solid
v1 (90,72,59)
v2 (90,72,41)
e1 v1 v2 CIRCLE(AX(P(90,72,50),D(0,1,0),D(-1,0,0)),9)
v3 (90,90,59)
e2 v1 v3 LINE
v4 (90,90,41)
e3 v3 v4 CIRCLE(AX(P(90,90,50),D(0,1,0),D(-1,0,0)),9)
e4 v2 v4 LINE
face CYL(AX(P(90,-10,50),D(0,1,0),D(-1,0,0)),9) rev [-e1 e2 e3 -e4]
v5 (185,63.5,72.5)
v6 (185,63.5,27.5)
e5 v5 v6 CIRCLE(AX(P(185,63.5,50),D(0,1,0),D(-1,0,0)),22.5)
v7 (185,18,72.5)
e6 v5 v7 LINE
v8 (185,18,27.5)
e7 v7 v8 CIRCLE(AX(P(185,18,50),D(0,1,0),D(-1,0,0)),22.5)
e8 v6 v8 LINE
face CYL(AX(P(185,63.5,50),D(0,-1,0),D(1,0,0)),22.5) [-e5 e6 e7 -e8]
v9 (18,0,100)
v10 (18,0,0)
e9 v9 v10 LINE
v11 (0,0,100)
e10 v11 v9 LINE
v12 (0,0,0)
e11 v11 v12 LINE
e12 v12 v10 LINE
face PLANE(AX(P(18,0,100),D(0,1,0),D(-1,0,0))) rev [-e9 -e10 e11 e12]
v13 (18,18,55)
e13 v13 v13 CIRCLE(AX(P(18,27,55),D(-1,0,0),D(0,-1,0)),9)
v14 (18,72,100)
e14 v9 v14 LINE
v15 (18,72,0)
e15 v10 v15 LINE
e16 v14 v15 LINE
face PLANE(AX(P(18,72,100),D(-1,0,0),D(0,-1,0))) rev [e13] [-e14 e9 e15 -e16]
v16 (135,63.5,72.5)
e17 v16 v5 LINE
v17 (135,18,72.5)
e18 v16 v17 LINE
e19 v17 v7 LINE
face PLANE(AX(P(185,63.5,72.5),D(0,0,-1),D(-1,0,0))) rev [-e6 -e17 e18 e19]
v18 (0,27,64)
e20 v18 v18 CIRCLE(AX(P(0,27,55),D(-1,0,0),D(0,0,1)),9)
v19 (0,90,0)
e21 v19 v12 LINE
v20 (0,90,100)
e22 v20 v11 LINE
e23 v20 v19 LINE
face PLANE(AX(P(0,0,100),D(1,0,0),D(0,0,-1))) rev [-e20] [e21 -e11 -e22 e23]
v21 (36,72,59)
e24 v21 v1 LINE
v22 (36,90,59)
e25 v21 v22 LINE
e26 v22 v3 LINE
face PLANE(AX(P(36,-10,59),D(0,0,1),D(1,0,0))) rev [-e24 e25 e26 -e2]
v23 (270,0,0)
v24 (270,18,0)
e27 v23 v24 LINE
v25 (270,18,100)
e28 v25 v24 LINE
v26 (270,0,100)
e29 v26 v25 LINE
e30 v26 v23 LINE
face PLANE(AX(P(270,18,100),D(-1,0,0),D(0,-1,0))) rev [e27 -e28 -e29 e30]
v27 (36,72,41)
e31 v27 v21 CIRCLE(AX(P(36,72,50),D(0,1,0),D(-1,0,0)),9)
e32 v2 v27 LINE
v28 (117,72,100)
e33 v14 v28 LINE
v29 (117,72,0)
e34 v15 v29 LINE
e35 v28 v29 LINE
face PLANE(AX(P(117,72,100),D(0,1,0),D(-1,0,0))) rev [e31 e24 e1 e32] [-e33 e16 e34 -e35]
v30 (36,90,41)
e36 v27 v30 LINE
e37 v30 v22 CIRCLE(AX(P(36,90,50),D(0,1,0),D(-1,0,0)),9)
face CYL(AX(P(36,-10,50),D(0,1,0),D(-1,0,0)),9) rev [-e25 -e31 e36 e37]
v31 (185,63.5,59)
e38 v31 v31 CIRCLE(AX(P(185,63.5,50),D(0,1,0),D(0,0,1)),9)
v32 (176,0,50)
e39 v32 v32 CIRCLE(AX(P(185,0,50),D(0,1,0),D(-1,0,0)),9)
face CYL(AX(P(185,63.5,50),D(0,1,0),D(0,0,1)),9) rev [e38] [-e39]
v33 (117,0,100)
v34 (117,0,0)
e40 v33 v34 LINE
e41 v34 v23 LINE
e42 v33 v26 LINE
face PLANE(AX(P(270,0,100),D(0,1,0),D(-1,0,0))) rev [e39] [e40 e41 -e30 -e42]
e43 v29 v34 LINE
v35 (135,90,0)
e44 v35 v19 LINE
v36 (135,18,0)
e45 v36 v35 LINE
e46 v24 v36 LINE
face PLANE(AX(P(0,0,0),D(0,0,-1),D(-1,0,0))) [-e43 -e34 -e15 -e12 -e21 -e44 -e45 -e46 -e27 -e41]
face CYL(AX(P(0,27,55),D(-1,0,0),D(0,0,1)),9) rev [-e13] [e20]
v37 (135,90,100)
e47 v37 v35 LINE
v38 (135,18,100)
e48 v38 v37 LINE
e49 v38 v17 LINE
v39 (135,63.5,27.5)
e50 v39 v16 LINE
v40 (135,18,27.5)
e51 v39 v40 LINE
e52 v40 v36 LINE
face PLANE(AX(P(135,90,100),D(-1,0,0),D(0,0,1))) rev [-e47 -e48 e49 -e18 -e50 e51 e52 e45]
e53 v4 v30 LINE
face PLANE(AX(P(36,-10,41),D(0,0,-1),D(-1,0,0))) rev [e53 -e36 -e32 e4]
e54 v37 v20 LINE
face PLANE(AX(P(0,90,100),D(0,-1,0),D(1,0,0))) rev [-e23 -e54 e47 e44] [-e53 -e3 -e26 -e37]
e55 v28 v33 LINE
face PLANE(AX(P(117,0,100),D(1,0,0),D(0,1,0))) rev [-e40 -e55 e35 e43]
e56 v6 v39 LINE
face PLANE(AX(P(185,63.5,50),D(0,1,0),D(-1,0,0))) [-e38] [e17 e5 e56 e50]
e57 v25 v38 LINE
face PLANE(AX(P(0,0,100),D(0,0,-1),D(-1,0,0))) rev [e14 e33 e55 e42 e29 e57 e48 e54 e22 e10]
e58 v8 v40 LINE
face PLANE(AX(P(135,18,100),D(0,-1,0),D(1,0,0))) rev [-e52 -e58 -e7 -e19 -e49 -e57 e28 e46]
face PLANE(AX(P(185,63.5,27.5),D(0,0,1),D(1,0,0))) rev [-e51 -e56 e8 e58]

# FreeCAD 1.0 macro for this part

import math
import FreeCAD as App
import Part
import Sketcher
from FreeCAD import Vector
Q = App.Units.Quantity


def add_polygon(sketch, points):
    """Adds a closed chain of lines whose ends are joined by coincident constraints."""
    first, n = sketch.GeometryCount, len(points)
    for a, b in zip(points, points[1:] + points[:1]):
        sketch.addGeometry(Part.LineSegment(App.Vector(*a, 0), App.Vector(*b, 0)), False)
    for i in range(n):
        sketch.addConstraint(Sketcher.Constraint("Coincident", first + i, 2, first + (i + 1) % n, 1))

doc = App.newDocument("Part")
body = doc.addObject("PartDesign::Body", "Body")

sketch1 = body.newObject("Sketcher::SketchObject", "Sketch")
sketch1.AttachmentSupport = (doc.getObject("XY_Plane"), [""])
sketch1.MapMode = "FlatFace"
add_polygon(sketch1, [(0, 90), (0, 0), (18, 0), (18, 72), (117, 72), (117, 0), (270, 0), (270, 18), (135, 18), (135, 90)])
sketch1.addConstraint([
    Sketcher.Constraint("Vertical", 0),
    Sketcher.Constraint("Horizontal", 1),
    Sketcher.Constraint("Vertical", 2),
    Sketcher.Constraint("Horizontal", 3),
    Sketcher.Constraint("Vertical", 4),
    Sketcher.Constraint("Horizontal", 5),
    Sketcher.Constraint("Vertical", 6),
    Sketcher.Constraint("Horizontal", 7),
    Sketcher.Constraint("Vertical", 8),
    Sketcher.Constraint("Horizontal", 9),
    Sketcher.Constraint("Coincident", 0, 2, -1, 1),
    Sketcher.Constraint("PointOnObject", 4, 2, -1),
    Sketcher.Constraint("Equal", 7, 9),
    Sketcher.Constraint("Equal", 1, 6),
    Sketcher.Constraint("Equal", 4, 8),
    Sketcher.Constraint("DistanceX", 1, 1, 1, 2, Q("18 mm")),
    Sketcher.Constraint("DistanceX", 3, 1, 3, 2, Q("99 mm")),
    Sketcher.Constraint("DistanceX", 5, 1, 5, 2, Q("153 mm")),
    Sketcher.Constraint("DistanceY", 0, 2, 0, 1, Q("90 mm")),
])
pad1 = body.newObject("PartDesign::Pad", "Pad")
pad1.Profile = sketch1
pad1.Length = 100

sketch2 = body.newObject("Sketcher::SketchObject", "Sketch001")
sketch2.AttachmentSupport = (doc.getObject("XZ_Plane"), [""])
sketch2.MapMode = "FlatFace"
sketch2.AttachmentOffset = App.Placement(Vector(0, 0, -90), App.Rotation())
sketch2.addGeometry([
    Part.LineSegment(Vector(90, 41, 0), Vector(36, 41, 0)),
    Part.ArcOfCircle(Part.Circle(Vector(36, 50, 0), Vector(0, 0, 1), 9), math.radians(90), math.radians(270)),
    Part.LineSegment(Vector(36, 59, 0), Vector(90, 59, 0)),
    Part.ArcOfCircle(Part.Circle(Vector(90, 50, 0), Vector(0, 0, 1), 9), math.radians(-90), math.radians(90)),
], False)
sketch2.addConstraint([
    Sketcher.Constraint("Tangent", 0, 2, 1, 2),
    Sketcher.Constraint("Tangent", 1, 1, 2, 1),
    Sketcher.Constraint("Tangent", 2, 2, 3, 2),
    Sketcher.Constraint("Tangent", 3, 1, 0, 1),
    Sketcher.Constraint("Horizontal", 0),
    Sketcher.Constraint("Horizontal", 2),
    Sketcher.Constraint("Radius", 1, Q("9 mm")),
    Sketcher.Constraint("DistanceX", 0, 2, 0, 1, Q("54 mm")),
    Sketcher.Constraint("DistanceX", -1, 1, 1, 3, Q("36 mm")),
    Sketcher.Constraint("DistanceY", -1, 1, 1, 3, Q("50 mm")),
])
pocket1 = body.newObject("PartDesign::Pocket", "Pocket")
pocket1.Profile = sketch2
pocket1.Length = 100
pocket1.Reversed = True

sketch3 = body.newObject("Sketcher::SketchObject", "Sketch002")
sketch3.AttachmentSupport = (doc.getObject("XZ_Plane"), [""])
sketch3.MapMode = "FlatFace"
sketch3.AttachmentOffset = App.Placement(Vector(0, 0, -18), App.Rotation())
sketch3.addGeometry([
    Part.LineSegment(Vector(185, 28, 0), Vector(135, 28, 0)),
    Part.LineSegment(Vector(135, 28, 0), Vector(135, 72, 0)),
    Part.LineSegment(Vector(135, 72, 0), Vector(185, 72, 0)),
    Part.ArcOfCircle(Part.Circle(Vector(185, 50, 0), Vector(0, 0, 1), 22), math.radians(-90), math.radians(90)),
], False)
sketch3.addConstraint([
    Sketcher.Constraint("Coincident", 0, 2, 1, 1),
    Sketcher.Constraint("Coincident", 1, 2, 2, 1),
    Sketcher.Constraint("Tangent", 2, 2, 3, 2),
    Sketcher.Constraint("Tangent", 3, 1, 0, 1),
    Sketcher.Constraint("Horizontal", 0),
    Sketcher.Constraint("Vertical", 1),
    Sketcher.Constraint("Horizontal", 2),
    Sketcher.Constraint("Radius", 3, Q("22.5 mm")),
    Sketcher.Constraint("DistanceX", 0, 2, 0, 1, Q("50 mm")),
    Sketcher.Constraint("DistanceX", -1, 1, 3, 3, Q("185 mm")),
    Sketcher.Constraint("DistanceY", -1, 1, 3, 3, Q("50 mm")),
])
pad2 = body.newObject("PartDesign::Pad", "Pad001")
pad2.Profile = sketch3
pad2.Length = 45.5
pad2.Reversed = True

sketch4 = body.newObject("Sketcher::SketchObject", "Sketch003")
sketch4.AttachmentSupport = (doc.getObject("XZ_Plane"), [""])
sketch4.MapMode = "FlatFace"
sketch4.AttachmentOffset = App.Placement(Vector(0, 0, -63.5), App.Rotation())
sketch4.addGeometry(Part.Circle(Vector(185, 50, 0), Vector(0, 0, 1), 9), False)
sketch4.addConstraint([
    Sketcher.Constraint("Diameter", 0, Q("18 mm")),
    Sketcher.Constraint("DistanceX", -1, 1, 0, 3, Q("185 mm")),
    Sketcher.Constraint("DistanceY", -1, 1, 0, 3, Q("50 mm")),
])
doc.recompute()
hole = body.newObject("PartDesign::Hole", "Hole")
hole.Profile = sketch4
hole.ThreadType = "None"
hole.Diameter = 18
hole.DepthType = "ThroughAll"
hole.Reversed = True

sketch5 = body.newObject("Sketcher::SketchObject", "Sketch004")
sketch5.AttachmentSupport = (doc.getObject("YZ_Plane"), [""])
sketch5.MapMode = "FlatFace"
sketch5.addGeometry(Part.Circle(Vector(27, 55, 0), Vector(0, 0, 1), 9), False)
sketch5.addConstraint([
    Sketcher.Constraint("Diameter", 0, Q("18 mm")),
    Sketcher.Constraint("DistanceX", -1, 1, 0, 3, Q("27 mm")),
    Sketcher.Constraint("DistanceY", -1, 1, 0, 3, Q("55 mm")),
])
doc.recompute()
hole2 = body.newObject("PartDesign::Hole", "Hole001")
hole2.Profile = sketch5
hole2.ThreadType = "None"
hole2.Diameter = 18
hole2.DepthType = "Dimension"
hole2.Depth = 18
hole2.DrillPoint = "Flat"
hole2.Reversed = True

doc.recompute()
